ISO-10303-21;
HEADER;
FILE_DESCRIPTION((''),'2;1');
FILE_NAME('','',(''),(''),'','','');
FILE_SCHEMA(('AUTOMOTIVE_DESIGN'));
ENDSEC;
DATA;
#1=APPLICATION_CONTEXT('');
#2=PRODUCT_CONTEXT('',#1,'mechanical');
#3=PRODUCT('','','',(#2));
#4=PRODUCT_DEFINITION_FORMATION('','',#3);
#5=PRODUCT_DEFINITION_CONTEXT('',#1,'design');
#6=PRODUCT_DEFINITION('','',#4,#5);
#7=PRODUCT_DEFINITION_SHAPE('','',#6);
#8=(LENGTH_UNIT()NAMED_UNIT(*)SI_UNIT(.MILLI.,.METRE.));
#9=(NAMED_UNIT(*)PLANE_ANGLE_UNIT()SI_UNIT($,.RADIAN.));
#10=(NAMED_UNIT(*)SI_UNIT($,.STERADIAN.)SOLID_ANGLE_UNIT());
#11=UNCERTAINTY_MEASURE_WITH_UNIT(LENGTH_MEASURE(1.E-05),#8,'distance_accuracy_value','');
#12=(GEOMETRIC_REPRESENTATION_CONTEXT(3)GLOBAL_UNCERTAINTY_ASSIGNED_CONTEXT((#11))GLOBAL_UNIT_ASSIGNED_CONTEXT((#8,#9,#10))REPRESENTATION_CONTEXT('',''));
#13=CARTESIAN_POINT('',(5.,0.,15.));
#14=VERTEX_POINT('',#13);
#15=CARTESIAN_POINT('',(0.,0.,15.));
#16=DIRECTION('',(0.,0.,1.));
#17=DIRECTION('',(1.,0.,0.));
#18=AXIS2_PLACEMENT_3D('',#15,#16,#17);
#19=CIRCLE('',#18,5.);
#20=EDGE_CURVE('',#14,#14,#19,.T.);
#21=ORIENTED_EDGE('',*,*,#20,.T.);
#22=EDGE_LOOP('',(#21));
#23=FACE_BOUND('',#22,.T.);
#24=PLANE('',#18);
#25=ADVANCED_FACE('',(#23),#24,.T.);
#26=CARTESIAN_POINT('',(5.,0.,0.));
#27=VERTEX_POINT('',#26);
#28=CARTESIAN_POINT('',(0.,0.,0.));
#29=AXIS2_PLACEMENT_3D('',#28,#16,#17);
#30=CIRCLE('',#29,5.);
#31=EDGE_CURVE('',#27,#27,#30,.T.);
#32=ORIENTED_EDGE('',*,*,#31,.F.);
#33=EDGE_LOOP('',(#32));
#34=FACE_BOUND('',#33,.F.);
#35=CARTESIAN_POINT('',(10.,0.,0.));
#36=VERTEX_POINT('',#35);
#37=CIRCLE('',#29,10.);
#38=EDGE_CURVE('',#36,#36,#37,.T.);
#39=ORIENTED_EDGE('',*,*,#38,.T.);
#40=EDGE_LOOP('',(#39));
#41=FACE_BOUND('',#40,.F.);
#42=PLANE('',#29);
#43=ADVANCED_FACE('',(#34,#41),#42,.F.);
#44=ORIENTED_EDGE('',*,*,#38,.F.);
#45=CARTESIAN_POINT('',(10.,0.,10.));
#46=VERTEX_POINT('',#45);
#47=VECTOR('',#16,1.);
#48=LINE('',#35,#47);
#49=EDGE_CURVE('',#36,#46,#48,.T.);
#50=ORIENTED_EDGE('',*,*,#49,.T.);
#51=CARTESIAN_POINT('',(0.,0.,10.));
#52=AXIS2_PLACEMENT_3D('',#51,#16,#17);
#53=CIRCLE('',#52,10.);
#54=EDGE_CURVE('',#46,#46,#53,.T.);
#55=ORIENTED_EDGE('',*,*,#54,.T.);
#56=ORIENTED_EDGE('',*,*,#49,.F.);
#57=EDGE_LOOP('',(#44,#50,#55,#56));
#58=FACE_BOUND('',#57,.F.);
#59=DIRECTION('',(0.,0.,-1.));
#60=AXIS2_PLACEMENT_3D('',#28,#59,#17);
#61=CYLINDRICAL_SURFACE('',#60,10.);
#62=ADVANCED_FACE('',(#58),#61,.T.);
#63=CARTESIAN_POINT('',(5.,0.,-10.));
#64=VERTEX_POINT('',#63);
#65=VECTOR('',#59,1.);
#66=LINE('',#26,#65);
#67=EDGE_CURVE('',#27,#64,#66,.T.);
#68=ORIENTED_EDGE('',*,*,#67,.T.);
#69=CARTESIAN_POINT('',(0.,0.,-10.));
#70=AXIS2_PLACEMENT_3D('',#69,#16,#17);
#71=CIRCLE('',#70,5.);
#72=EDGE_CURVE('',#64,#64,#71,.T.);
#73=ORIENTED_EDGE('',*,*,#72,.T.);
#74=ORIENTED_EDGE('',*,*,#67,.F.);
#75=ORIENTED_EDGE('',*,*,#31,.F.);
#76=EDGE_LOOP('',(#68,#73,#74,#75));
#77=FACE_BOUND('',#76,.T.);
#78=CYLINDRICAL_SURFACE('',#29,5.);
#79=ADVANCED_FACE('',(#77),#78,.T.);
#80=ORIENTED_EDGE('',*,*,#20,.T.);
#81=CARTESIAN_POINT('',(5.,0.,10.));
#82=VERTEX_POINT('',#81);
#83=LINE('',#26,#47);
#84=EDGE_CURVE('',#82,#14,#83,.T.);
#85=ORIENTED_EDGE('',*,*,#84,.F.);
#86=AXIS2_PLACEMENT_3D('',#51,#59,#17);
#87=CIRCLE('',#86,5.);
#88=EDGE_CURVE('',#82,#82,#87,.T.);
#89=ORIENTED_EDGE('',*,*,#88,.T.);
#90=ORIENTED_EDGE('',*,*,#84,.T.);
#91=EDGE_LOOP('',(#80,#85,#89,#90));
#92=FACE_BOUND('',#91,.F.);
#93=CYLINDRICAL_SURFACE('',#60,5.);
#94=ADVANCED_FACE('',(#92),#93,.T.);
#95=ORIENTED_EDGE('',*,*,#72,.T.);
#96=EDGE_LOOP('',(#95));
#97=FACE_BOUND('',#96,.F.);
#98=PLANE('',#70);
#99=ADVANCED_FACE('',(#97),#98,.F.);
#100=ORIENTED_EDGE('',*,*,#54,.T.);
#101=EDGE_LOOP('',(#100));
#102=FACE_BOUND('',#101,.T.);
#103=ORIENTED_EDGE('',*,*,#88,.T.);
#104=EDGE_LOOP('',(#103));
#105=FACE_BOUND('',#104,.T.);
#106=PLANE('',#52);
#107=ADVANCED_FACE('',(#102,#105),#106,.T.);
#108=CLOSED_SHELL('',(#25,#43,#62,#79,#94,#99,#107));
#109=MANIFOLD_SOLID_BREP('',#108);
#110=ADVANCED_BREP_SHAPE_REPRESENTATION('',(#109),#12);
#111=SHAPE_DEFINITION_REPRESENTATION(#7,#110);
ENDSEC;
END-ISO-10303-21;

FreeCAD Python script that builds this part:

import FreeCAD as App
import Part
import Sketcher

doc = App.newDocument("Part")
body = doc.addObject("PartDesign::Body", "Body")

# Sketch on XY plane
sketch1 = body.newObject("Sketcher::SketchObject", "Sketch")
sketch1.AttachmentSupport = (doc.getObject("XY_Plane"), [""])
sketch1.MapMode = "FlatFace"
sketch1.addGeometry(Part.Circle(App.Vector(0, 0, 0), App.Vector(0, 0, 1), 10), False)
sketch1.addConstraint([
    Sketcher.Constraint("Coincident", 0, 3, -1, 1),
    Sketcher.Constraint("Diameter", 0, 20.0),
])
pad1 = body.newObject("PartDesign::Pad", "Pad")
pad1.Profile = sketch1
pad1.Length = 10

# Sketch on XY plane
sketch2 = body.newObject("Sketcher::SketchObject", "Sketch001")
sketch2.AttachmentSupport = (doc.getObject("XY_Plane"), [""])
sketch2.MapMode = "FlatFace"
sketch2.addGeometry(Part.Circle(App.Vector(0, 0, 0), App.Vector(0, 0, 1), 5), False)
sketch2.addConstraint([
    Sketcher.Constraint("Coincident", 0, 3, -1, 1),
    Sketcher.Constraint("Diameter", 0, 10.0),
])
pad2 = body.newObject("PartDesign::Pad", "Pad001")
pad2.Profile = sketch2
pad2.Length = 15

# Sketch on XY plane
sketch3 = body.newObject("Sketcher::SketchObject", "Sketch002")
sketch3.AttachmentSupport = (doc.getObject("XY_Plane"), [""])
sketch3.MapMode = "FlatFace"
sketch3.addGeometry(Part.Circle(App.Vector(0, 0, 0), App.Vector(0, 0, 1), 5), False)
sketch3.addConstraint([
    Sketcher.Constraint("Coincident", 0, 3, -1, 1),
    Sketcher.Constraint("Diameter", 0, 10.0),
])
pad3 = body.newObject("PartDesign::Pad", "Pad002")
pad3.Profile = sketch3
pad3.Length = 10
pad3.Reversed = True

doc.recompute()
